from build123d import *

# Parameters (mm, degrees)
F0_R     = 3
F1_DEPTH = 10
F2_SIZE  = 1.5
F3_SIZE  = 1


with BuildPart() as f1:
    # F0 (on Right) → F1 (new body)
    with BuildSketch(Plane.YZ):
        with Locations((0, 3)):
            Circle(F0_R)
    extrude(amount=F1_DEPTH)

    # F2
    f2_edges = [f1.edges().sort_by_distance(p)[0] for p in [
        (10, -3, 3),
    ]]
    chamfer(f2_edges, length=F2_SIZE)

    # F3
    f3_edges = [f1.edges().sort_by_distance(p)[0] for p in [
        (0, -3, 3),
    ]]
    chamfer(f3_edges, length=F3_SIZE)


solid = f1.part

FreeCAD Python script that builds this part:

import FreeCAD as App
import Part
import Sketcher
Q = App.Units.Quantity


def edges_at(feature, points):
    """Names of the edges that pass closest to the given points."""
    edges = feature.Shape.Edges
    near = lambda p: min(range(len(edges)), key=lambda i: edges[i].distToShape(Part.Vertex(*p))[0])
    return sorted({f"Edge{near(p) + 1}" for p in points})

doc = App.newDocument("Part")
body = doc.addObject("PartDesign::Body", "Body")

# Sketch on YZ plane
sketch1 = body.newObject("Sketcher::SketchObject", "Sketch")
sketch1.AttachmentSupport = (doc.getObject("YZ_Plane"), [""])
sketch1.MapMode = "FlatFace"
sketch1.addGeometry(Part.Circle(App.Vector(0, 3, 0), App.Vector(0, 0, 1), 3), False)
sketch1.addConstraint([
    Sketcher.Constraint("PointOnObject", 0, 3, -2),
    Sketcher.Constraint("Diameter", 0, Q("6 mm")),
    Sketcher.Constraint("DistanceY", -1, 1, 0, 3, Q("3 mm")),
])
pad1 = body.newObject("PartDesign::Pad", "Pad")
pad1.Profile = sketch1
pad1.Length = 10
doc.recompute()

chamfer = body.newObject("PartDesign::Chamfer", "Chamfer")
chamfer.Base = (pad1, edges_at(pad1, [(10, -3, 3)]))
chamfer.Size = 1.5
doc.recompute()

chamfer2 = body.newObject("PartDesign::Chamfer", "Chamfer001")
chamfer2.Base = (chamfer, edges_at(chamfer, [(0, -3, 3)]))
chamfer2.Size = 1

doc.recompute()
